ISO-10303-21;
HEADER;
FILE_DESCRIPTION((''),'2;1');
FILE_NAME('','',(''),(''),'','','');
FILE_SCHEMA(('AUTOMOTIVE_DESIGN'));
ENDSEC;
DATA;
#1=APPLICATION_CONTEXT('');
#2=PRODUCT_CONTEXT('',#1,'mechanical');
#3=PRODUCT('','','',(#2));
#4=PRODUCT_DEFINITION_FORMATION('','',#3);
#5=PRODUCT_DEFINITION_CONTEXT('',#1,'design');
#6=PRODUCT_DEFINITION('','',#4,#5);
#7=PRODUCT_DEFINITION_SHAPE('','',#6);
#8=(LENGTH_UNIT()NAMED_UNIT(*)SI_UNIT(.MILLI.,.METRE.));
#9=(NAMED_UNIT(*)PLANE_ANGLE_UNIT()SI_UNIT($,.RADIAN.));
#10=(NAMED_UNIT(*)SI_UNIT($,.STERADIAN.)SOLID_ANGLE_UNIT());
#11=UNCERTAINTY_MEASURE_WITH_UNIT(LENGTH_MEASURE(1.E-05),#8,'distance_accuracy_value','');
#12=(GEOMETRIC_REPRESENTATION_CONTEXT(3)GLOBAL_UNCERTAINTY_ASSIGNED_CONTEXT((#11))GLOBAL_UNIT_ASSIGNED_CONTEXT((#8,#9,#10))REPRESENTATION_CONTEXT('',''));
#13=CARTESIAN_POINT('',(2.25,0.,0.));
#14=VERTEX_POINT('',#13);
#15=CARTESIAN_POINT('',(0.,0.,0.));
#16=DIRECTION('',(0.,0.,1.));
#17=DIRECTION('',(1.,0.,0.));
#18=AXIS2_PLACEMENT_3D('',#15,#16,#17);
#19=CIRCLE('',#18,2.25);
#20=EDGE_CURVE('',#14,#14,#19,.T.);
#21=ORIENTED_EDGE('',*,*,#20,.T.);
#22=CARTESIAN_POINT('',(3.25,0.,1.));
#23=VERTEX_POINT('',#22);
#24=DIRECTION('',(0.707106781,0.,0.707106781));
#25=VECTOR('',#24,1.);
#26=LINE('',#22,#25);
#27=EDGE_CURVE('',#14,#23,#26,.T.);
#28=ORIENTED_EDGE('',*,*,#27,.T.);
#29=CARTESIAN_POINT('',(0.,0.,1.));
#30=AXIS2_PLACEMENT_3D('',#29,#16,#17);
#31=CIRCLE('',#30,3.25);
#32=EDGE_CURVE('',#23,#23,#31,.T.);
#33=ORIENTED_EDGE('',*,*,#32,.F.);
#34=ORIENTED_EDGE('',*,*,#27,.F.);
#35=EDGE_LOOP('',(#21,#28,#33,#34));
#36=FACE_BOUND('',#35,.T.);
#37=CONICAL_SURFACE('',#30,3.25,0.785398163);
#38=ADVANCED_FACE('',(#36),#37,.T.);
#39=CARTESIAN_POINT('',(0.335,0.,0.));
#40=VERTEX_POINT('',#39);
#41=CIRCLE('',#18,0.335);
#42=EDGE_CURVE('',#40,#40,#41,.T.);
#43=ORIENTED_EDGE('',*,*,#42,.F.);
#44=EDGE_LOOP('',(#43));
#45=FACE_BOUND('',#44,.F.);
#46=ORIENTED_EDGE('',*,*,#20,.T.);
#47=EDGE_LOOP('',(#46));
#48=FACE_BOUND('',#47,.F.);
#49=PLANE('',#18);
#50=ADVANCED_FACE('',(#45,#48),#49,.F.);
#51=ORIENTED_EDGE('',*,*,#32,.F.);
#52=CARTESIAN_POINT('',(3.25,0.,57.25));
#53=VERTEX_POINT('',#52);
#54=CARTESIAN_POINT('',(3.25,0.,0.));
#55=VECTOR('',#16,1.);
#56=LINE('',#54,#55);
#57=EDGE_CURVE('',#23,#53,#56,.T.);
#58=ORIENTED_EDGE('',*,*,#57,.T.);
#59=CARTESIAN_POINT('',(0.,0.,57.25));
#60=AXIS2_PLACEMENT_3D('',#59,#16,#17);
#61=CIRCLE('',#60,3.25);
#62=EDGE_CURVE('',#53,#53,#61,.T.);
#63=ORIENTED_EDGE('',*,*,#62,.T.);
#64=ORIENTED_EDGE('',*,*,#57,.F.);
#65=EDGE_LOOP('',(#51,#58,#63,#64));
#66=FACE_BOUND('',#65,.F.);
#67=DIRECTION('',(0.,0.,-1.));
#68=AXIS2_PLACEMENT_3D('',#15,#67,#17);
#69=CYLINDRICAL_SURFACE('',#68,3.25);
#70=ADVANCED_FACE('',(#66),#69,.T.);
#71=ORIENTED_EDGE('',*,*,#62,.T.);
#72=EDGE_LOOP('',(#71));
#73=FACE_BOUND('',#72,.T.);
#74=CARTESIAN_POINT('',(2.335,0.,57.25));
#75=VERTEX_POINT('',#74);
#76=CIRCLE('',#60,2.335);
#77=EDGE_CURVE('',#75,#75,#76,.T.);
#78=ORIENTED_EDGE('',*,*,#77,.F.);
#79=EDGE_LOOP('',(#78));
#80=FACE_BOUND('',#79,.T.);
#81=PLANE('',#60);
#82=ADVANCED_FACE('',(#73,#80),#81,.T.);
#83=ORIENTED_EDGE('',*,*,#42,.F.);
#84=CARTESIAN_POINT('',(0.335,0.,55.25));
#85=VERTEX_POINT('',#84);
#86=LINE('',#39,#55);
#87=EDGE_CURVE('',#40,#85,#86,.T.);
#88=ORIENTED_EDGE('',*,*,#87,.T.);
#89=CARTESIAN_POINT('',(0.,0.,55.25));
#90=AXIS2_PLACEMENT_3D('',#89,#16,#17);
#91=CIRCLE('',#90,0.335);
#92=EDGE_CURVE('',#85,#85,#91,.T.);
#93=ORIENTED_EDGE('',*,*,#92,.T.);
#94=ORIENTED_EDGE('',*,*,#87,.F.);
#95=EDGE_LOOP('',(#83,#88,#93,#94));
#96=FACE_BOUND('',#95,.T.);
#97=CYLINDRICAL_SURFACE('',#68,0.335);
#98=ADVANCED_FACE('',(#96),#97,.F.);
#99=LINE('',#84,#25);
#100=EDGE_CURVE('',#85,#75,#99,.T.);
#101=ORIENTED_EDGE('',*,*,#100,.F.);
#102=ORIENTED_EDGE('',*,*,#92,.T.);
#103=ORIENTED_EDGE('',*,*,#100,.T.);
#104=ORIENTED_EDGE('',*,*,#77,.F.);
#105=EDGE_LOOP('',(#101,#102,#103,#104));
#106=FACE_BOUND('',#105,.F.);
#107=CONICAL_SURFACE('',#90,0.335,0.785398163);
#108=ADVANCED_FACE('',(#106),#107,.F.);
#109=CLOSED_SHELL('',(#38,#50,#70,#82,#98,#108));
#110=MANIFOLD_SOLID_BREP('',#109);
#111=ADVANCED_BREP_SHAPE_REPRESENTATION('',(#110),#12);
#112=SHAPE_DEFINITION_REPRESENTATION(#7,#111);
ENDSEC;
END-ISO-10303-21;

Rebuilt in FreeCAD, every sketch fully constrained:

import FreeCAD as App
import Part
import Sketcher

V = App.Vector


def edges_at(feature, points):
    """Names of the edges that pass closest to the given points."""
    edges = feature.Shape.Edges
    near = lambda p: min(range(len(edges)), key=lambda i: edges[i].distToShape(Part.Vertex(*p))[0])
    return sorted({f"Edge{near(p) + 1}" for p in points})

doc = App.newDocument("Part")
body = doc.addObject("PartDesign::Body", "Body")

# Sketch on XY plane
sketch1 = body.newObject("Sketcher::SketchObject", "Sketch")
sketch1.AttachmentSupport = (doc.getObject("XY_Plane"), [""])
sketch1.MapMode = "FlatFace"
sketch1.addGeometry([
    Part.Circle(V(0, 0, 0), V(0, 0, 1), 3.25),
    Part.Circle(V(0, 0, 0), V(0, 0, 1), 0.34),
], False)
sketch1.addConstraint([
    Sketcher.Constraint("Coincident", 0, 3, -1, 1),
    Sketcher.Constraint("Coincident", 1, 3, -1, 1),
    Sketcher.Constraint("Diameter", 0, 6.5),
    Sketcher.Constraint("Diameter", 1, 0.67),
])
pad1 = body.newObject("PartDesign::Pad", "Pad")
pad1.Profile = sketch1
pad1.Length = 57.25
doc.recompute()

chamfer = body.newObject("PartDesign::Chamfer", "Chamfer")
chamfer.Base = (pad1, edges_at(pad1, [(-0.335, 0, 57.25)]))
chamfer.Size = 2
doc.recompute()

chamfer2 = body.newObject("PartDesign::Chamfer", "Chamfer001")
chamfer2.Base = (chamfer, edges_at(chamfer, [(-3.25, 0, 0)]))
chamfer2.Size = 1

doc.recompute()
